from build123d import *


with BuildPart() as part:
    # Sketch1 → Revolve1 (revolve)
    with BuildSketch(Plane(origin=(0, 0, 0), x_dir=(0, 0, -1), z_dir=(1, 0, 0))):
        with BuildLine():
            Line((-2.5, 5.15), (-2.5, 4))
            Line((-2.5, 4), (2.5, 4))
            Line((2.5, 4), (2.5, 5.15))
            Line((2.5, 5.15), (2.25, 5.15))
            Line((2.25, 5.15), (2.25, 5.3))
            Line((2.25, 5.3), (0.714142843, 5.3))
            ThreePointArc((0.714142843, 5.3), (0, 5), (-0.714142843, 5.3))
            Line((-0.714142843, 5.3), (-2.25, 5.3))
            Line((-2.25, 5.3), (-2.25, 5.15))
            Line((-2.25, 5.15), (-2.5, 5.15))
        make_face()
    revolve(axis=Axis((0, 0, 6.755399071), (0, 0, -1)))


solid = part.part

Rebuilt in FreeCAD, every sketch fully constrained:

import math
import FreeCAD as App
import Part
import Sketcher
from FreeCAD import Vector
Q = App.Units.Quantity

doc = App.newDocument("Part")
params = doc.addObject("Spreadsheet::Sheet", "Params")
for row, (alias, value) in enumerate([
    ("sketch1_radius", "1 mm"),
    ("sketch1_height", "5 mm"),
    ("sketch1_width", "1.15 mm"),
    ("sketch1_width2", "0.15 mm"),
    ("sketch1_height2", "0.25 mm"),
    ("revolution_angle", "360 deg"),
], start=1):
    params.set(f"A{row}", alias)
    params.set(f"B{row}", "=" + value)
    params.setAlias(f"B{row}", alias)

body = doc.addObject("PartDesign::Body", "Body")

sketch1 = doc.addObject("Sketcher::SketchObject", "Sketch")
body.addObject(sketch1)
sketch1.AttachmentSupport = (doc.YZ_Plane, [""])
sketch1.MapMode = "FlatFace"
sketch1.addGeometry([
    Part.LineSegment(Vector(5.15, 2.5, 0), Vector(4, 2.5, 0)),
    Part.LineSegment(Vector(4, 2.5, 0), Vector(4, -2.5, 0)),
    Part.LineSegment(Vector(4, -2.5, 0), Vector(5.15, -2.5, 0)),
    Part.LineSegment(Vector(5.15, -2.5, 0), Vector(5.15, -2.25, 0)),
    Part.LineSegment(Vector(5.15, -2.25, 0), Vector(5.3, -2.25, 0)),
    Part.LineSegment(Vector(5.3, -2.25, 0), Vector(5.3, -0.714143, 0)),
    Part.ArcOfCircle(Part.Circle(Vector(6, 0, 0), Vector(0, 0, 1), 1), math.radians(134.427004), math.radians(225.572996)),
    Part.LineSegment(Vector(5.3, 0.714143, 0), Vector(5.3, 2.25, 0)),
    Part.LineSegment(Vector(5.3, 2.25, 0), Vector(5.15, 2.25, 0)),
    Part.LineSegment(Vector(5.15, 2.25, 0), Vector(5.15, 2.5, 0)),
], False)
sketch1.addConstraint([
    Sketcher.Constraint("Coincident", 0, 2, 1, 1),
    Sketcher.Constraint("Coincident", 1, 2, 2, 1),
    Sketcher.Constraint("Coincident", 2, 2, 3, 1),
    Sketcher.Constraint("Coincident", 3, 2, 4, 1),
    Sketcher.Constraint("Coincident", 4, 2, 5, 1),
    Sketcher.Constraint("Coincident", 5, 2, 6, 2),
    Sketcher.Constraint("Coincident", 6, 1, 7, 1),
    Sketcher.Constraint("Coincident", 7, 2, 8, 1),
    Sketcher.Constraint("Coincident", 8, 2, 9, 1),
    Sketcher.Constraint("Coincident", 9, 2, 0, 1),
    Sketcher.Constraint("Horizontal", 0),
    Sketcher.Constraint("Vertical", 1),
    Sketcher.Constraint("Horizontal", 2),
    Sketcher.Constraint("Vertical", 3),
    Sketcher.Constraint("Horizontal", 4),
    Sketcher.Constraint("Vertical", 5),
    Sketcher.Constraint("Vertical", 7),
    Sketcher.Constraint("Horizontal", 8),
    Sketcher.Constraint("Vertical", 9),
    Sketcher.Constraint("Symmetric", 5, 2, 6, 1, -1),
    Sketcher.Constraint("Symmetric", 3, 2, 8, 2, -1),
    Sketcher.Constraint("Equal", 3, 9),
    Sketcher.Constraint("Radius", 6, Q("1 mm")),
    Sketcher.Constraint("DistanceY", 1, 2, 1, 1, Q("5 mm")),
    Sketcher.Constraint("DistanceX", -1, 1, 6, 3, Q("6 mm")),
    Sketcher.Constraint("DistanceX", -1, 1, 0, 2, Q("4 mm")),
    Sketcher.Constraint("DistanceX", 0, 2, 0, 1, Q("1.15 mm")),
    Sketcher.Constraint("DistanceX", 4, 1, 4, 2, Q("0.15 mm")),
    Sketcher.Constraint("DistanceY", 3, 1, 3, 2, Q("0.25 mm")),
])
sketch1.setExpression("Constraints[22]", "Params.sketch1_radius")
sketch1.setExpression("Constraints[23]", "Params.sketch1_height")
sketch1.setExpression("Constraints[26]", "Params.sketch1_width")
sketch1.setExpression("Constraints[27]", "Params.sketch1_width2")
sketch1.setExpression("Constraints[28]", "Params.sketch1_height2")
revolution = doc.addObject("PartDesign::Revolution", "Revolution")
body.addObject(revolution)
revolution.Profile = sketch1
revolution.ReferenceAxis = (sketch1, ["V_Axis"])
revolution.setExpression("Angle", "Params.revolution_angle")

doc.recompute()
